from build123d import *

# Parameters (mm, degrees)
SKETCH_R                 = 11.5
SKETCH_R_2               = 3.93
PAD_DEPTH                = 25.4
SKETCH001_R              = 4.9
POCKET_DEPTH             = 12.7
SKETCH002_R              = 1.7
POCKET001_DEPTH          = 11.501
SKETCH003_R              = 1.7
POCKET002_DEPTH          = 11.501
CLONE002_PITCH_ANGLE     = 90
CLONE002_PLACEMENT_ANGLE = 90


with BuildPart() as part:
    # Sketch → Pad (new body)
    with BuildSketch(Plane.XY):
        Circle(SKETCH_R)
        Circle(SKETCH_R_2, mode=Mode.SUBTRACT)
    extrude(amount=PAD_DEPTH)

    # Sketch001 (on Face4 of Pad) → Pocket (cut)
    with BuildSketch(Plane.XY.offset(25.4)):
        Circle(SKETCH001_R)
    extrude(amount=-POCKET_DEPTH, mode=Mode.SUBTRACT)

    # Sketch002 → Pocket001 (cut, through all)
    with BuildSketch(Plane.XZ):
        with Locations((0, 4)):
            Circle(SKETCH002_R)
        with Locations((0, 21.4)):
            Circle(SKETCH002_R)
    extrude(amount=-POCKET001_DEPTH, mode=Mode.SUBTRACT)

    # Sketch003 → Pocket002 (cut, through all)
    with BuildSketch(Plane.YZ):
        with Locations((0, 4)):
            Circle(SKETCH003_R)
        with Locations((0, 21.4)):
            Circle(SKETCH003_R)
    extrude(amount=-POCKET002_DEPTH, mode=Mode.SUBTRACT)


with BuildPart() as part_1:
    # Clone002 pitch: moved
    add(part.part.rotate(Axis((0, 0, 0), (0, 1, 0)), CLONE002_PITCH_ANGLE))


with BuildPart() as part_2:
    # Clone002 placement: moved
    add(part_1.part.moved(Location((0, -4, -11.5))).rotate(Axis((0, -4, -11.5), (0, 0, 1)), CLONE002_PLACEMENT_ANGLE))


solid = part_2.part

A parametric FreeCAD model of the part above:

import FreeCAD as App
import Part
import Sketcher

V = App.Vector

doc = App.newDocument("Part")
body = doc.addObject("PartDesign::Body", "Body")

# Sketch on XY plane
sketch1 = body.newObject("Sketcher::SketchObject", "Sketch")
sketch1.AttachmentSupport = (doc.getObject("XY_Plane"), [""])
sketch1.MapMode = "FlatFace"
sketch1.addGeometry(Part.Circle(V(0, 0, 0), V(0, 0, 1), 11.5), False)
sketch1.addGeometry(Part.Circle(V(0, 0, 0), V(0, 0, 1), 3.9), False)
sketch1.addConstraint(Sketcher.Constraint("Coincident", 0, 3, -1, 1))
sketch1.addConstraint(Sketcher.Constraint("Coincident", 1, 3, -1, 1))
sketch1.addConstraint(Sketcher.Constraint("Diameter", 0, 23.0))
sketch1.addConstraint(Sketcher.Constraint("Diameter", 1, 7.86))
pad1 = body.newObject("PartDesign::Pad", "Pad")
pad1.Profile = sketch1
pad1.Length = 25.4

# Sketch on XY plane
sketch2 = body.newObject("Sketcher::SketchObject", "Sketch001")
sketch2.AttachmentSupport = (doc.getObject("XY_Plane"), [""])
sketch2.MapMode = "FlatFace"
sketch2.AttachmentOffset = App.Placement(V(0, 0, 25.4), App.Rotation())
sketch2.addGeometry(Part.Circle(V(0, 0, 0), V(0, 0, 1), 4.9), False)
sketch2.addConstraint(Sketcher.Constraint("Coincident", 0, 3, -1, 1))
sketch2.addConstraint(Sketcher.Constraint("Diameter", 0, 9.8))
pocket1 = body.newObject("PartDesign::Pocket", "Pocket")
pocket1.Profile = sketch2
pocket1.Length = 12.7

# Sketch on XZ plane
sketch3 = body.newObject("Sketcher::SketchObject", "Sketch002")
sketch3.AttachmentSupport = (doc.getObject("XZ_Plane"), [""])
sketch3.MapMode = "FlatFace"
sketch3.addGeometry(Part.Circle(V(0, 4, 0), V(0, 0, 1), 1.7), False)
sketch3.addGeometry(Part.Circle(V(0, 21.4, 0), V(0, 0, 1), 1.7), False)
sketch3.addConstraint(Sketcher.Constraint("Equal", 0, 1))
sketch3.addConstraint(Sketcher.Constraint("PointOnObject", 0, 3, -2))
sketch3.addConstraint(Sketcher.Constraint("PointOnObject", 1, 3, -2))
sketch3.addConstraint(Sketcher.Constraint("Diameter", 0, 3.4))
sketch3.addConstraint(Sketcher.Constraint("DistanceY", -1, 1, 0, 3, 4.0))
sketch3.addConstraint(Sketcher.Constraint("DistanceY", -1, 1, 1, 3, 21.4))
pocket2 = body.newObject("PartDesign::Pocket", "Pocket001")
pocket2.Profile = sketch3
pocket2.Type = "ThroughAll"

# Sketch on YZ plane
sketch4 = body.newObject("Sketcher::SketchObject", "Sketch003")
sketch4.AttachmentSupport = (doc.getObject("YZ_Plane"), [""])
sketch4.MapMode = "FlatFace"
sketch4.addGeometry(Part.Circle(V(0, 4, 0), V(0, 0, 1), 1.7), False)
sketch4.addGeometry(Part.Circle(V(0, 21.4, 0), V(0, 0, 1), 1.7), False)
sketch4.addConstraint(Sketcher.Constraint("Equal", 0, 1))
sketch4.addConstraint(Sketcher.Constraint("PointOnObject", 0, 3, -2))
sketch4.addConstraint(Sketcher.Constraint("PointOnObject", 1, 3, -2))
sketch4.addConstraint(Sketcher.Constraint("Diameter", 0, 3.4))
sketch4.addConstraint(Sketcher.Constraint("DistanceY", -1, 1, 0, 3, 4.0))
sketch4.addConstraint(Sketcher.Constraint("DistanceY", -1, 1, 1, 3, 21.4))
pocket3 = body.newObject("PartDesign::Pocket", "Pocket002")
pocket3.Profile = sketch4
pocket3.Type = "ThroughAll"
body2 = doc.addObject("PartDesign::Body", "Body001")
doc.recompute()

body.Placement = App.Placement(V(0, 0, 0), App.Rotation(V(0, 1, 0), 90))
boolean = body2.newObject("PartDesign::Boolean", "Boolean")
boolean.Type = "Fuse"
boolean.addObjects([body])
body3 = doc.addObject("PartDesign::Body", "Body002")
doc.recompute()

body2.Placement = App.Placement(V(0, -4, -11.5), App.Rotation(V(0, 0, 1), 90))
boolean2 = body3.newObject("PartDesign::Boolean", "Boolean001")
boolean2.Type = "Fuse"
boolean2.addObjects([body2])

doc.recompute()
